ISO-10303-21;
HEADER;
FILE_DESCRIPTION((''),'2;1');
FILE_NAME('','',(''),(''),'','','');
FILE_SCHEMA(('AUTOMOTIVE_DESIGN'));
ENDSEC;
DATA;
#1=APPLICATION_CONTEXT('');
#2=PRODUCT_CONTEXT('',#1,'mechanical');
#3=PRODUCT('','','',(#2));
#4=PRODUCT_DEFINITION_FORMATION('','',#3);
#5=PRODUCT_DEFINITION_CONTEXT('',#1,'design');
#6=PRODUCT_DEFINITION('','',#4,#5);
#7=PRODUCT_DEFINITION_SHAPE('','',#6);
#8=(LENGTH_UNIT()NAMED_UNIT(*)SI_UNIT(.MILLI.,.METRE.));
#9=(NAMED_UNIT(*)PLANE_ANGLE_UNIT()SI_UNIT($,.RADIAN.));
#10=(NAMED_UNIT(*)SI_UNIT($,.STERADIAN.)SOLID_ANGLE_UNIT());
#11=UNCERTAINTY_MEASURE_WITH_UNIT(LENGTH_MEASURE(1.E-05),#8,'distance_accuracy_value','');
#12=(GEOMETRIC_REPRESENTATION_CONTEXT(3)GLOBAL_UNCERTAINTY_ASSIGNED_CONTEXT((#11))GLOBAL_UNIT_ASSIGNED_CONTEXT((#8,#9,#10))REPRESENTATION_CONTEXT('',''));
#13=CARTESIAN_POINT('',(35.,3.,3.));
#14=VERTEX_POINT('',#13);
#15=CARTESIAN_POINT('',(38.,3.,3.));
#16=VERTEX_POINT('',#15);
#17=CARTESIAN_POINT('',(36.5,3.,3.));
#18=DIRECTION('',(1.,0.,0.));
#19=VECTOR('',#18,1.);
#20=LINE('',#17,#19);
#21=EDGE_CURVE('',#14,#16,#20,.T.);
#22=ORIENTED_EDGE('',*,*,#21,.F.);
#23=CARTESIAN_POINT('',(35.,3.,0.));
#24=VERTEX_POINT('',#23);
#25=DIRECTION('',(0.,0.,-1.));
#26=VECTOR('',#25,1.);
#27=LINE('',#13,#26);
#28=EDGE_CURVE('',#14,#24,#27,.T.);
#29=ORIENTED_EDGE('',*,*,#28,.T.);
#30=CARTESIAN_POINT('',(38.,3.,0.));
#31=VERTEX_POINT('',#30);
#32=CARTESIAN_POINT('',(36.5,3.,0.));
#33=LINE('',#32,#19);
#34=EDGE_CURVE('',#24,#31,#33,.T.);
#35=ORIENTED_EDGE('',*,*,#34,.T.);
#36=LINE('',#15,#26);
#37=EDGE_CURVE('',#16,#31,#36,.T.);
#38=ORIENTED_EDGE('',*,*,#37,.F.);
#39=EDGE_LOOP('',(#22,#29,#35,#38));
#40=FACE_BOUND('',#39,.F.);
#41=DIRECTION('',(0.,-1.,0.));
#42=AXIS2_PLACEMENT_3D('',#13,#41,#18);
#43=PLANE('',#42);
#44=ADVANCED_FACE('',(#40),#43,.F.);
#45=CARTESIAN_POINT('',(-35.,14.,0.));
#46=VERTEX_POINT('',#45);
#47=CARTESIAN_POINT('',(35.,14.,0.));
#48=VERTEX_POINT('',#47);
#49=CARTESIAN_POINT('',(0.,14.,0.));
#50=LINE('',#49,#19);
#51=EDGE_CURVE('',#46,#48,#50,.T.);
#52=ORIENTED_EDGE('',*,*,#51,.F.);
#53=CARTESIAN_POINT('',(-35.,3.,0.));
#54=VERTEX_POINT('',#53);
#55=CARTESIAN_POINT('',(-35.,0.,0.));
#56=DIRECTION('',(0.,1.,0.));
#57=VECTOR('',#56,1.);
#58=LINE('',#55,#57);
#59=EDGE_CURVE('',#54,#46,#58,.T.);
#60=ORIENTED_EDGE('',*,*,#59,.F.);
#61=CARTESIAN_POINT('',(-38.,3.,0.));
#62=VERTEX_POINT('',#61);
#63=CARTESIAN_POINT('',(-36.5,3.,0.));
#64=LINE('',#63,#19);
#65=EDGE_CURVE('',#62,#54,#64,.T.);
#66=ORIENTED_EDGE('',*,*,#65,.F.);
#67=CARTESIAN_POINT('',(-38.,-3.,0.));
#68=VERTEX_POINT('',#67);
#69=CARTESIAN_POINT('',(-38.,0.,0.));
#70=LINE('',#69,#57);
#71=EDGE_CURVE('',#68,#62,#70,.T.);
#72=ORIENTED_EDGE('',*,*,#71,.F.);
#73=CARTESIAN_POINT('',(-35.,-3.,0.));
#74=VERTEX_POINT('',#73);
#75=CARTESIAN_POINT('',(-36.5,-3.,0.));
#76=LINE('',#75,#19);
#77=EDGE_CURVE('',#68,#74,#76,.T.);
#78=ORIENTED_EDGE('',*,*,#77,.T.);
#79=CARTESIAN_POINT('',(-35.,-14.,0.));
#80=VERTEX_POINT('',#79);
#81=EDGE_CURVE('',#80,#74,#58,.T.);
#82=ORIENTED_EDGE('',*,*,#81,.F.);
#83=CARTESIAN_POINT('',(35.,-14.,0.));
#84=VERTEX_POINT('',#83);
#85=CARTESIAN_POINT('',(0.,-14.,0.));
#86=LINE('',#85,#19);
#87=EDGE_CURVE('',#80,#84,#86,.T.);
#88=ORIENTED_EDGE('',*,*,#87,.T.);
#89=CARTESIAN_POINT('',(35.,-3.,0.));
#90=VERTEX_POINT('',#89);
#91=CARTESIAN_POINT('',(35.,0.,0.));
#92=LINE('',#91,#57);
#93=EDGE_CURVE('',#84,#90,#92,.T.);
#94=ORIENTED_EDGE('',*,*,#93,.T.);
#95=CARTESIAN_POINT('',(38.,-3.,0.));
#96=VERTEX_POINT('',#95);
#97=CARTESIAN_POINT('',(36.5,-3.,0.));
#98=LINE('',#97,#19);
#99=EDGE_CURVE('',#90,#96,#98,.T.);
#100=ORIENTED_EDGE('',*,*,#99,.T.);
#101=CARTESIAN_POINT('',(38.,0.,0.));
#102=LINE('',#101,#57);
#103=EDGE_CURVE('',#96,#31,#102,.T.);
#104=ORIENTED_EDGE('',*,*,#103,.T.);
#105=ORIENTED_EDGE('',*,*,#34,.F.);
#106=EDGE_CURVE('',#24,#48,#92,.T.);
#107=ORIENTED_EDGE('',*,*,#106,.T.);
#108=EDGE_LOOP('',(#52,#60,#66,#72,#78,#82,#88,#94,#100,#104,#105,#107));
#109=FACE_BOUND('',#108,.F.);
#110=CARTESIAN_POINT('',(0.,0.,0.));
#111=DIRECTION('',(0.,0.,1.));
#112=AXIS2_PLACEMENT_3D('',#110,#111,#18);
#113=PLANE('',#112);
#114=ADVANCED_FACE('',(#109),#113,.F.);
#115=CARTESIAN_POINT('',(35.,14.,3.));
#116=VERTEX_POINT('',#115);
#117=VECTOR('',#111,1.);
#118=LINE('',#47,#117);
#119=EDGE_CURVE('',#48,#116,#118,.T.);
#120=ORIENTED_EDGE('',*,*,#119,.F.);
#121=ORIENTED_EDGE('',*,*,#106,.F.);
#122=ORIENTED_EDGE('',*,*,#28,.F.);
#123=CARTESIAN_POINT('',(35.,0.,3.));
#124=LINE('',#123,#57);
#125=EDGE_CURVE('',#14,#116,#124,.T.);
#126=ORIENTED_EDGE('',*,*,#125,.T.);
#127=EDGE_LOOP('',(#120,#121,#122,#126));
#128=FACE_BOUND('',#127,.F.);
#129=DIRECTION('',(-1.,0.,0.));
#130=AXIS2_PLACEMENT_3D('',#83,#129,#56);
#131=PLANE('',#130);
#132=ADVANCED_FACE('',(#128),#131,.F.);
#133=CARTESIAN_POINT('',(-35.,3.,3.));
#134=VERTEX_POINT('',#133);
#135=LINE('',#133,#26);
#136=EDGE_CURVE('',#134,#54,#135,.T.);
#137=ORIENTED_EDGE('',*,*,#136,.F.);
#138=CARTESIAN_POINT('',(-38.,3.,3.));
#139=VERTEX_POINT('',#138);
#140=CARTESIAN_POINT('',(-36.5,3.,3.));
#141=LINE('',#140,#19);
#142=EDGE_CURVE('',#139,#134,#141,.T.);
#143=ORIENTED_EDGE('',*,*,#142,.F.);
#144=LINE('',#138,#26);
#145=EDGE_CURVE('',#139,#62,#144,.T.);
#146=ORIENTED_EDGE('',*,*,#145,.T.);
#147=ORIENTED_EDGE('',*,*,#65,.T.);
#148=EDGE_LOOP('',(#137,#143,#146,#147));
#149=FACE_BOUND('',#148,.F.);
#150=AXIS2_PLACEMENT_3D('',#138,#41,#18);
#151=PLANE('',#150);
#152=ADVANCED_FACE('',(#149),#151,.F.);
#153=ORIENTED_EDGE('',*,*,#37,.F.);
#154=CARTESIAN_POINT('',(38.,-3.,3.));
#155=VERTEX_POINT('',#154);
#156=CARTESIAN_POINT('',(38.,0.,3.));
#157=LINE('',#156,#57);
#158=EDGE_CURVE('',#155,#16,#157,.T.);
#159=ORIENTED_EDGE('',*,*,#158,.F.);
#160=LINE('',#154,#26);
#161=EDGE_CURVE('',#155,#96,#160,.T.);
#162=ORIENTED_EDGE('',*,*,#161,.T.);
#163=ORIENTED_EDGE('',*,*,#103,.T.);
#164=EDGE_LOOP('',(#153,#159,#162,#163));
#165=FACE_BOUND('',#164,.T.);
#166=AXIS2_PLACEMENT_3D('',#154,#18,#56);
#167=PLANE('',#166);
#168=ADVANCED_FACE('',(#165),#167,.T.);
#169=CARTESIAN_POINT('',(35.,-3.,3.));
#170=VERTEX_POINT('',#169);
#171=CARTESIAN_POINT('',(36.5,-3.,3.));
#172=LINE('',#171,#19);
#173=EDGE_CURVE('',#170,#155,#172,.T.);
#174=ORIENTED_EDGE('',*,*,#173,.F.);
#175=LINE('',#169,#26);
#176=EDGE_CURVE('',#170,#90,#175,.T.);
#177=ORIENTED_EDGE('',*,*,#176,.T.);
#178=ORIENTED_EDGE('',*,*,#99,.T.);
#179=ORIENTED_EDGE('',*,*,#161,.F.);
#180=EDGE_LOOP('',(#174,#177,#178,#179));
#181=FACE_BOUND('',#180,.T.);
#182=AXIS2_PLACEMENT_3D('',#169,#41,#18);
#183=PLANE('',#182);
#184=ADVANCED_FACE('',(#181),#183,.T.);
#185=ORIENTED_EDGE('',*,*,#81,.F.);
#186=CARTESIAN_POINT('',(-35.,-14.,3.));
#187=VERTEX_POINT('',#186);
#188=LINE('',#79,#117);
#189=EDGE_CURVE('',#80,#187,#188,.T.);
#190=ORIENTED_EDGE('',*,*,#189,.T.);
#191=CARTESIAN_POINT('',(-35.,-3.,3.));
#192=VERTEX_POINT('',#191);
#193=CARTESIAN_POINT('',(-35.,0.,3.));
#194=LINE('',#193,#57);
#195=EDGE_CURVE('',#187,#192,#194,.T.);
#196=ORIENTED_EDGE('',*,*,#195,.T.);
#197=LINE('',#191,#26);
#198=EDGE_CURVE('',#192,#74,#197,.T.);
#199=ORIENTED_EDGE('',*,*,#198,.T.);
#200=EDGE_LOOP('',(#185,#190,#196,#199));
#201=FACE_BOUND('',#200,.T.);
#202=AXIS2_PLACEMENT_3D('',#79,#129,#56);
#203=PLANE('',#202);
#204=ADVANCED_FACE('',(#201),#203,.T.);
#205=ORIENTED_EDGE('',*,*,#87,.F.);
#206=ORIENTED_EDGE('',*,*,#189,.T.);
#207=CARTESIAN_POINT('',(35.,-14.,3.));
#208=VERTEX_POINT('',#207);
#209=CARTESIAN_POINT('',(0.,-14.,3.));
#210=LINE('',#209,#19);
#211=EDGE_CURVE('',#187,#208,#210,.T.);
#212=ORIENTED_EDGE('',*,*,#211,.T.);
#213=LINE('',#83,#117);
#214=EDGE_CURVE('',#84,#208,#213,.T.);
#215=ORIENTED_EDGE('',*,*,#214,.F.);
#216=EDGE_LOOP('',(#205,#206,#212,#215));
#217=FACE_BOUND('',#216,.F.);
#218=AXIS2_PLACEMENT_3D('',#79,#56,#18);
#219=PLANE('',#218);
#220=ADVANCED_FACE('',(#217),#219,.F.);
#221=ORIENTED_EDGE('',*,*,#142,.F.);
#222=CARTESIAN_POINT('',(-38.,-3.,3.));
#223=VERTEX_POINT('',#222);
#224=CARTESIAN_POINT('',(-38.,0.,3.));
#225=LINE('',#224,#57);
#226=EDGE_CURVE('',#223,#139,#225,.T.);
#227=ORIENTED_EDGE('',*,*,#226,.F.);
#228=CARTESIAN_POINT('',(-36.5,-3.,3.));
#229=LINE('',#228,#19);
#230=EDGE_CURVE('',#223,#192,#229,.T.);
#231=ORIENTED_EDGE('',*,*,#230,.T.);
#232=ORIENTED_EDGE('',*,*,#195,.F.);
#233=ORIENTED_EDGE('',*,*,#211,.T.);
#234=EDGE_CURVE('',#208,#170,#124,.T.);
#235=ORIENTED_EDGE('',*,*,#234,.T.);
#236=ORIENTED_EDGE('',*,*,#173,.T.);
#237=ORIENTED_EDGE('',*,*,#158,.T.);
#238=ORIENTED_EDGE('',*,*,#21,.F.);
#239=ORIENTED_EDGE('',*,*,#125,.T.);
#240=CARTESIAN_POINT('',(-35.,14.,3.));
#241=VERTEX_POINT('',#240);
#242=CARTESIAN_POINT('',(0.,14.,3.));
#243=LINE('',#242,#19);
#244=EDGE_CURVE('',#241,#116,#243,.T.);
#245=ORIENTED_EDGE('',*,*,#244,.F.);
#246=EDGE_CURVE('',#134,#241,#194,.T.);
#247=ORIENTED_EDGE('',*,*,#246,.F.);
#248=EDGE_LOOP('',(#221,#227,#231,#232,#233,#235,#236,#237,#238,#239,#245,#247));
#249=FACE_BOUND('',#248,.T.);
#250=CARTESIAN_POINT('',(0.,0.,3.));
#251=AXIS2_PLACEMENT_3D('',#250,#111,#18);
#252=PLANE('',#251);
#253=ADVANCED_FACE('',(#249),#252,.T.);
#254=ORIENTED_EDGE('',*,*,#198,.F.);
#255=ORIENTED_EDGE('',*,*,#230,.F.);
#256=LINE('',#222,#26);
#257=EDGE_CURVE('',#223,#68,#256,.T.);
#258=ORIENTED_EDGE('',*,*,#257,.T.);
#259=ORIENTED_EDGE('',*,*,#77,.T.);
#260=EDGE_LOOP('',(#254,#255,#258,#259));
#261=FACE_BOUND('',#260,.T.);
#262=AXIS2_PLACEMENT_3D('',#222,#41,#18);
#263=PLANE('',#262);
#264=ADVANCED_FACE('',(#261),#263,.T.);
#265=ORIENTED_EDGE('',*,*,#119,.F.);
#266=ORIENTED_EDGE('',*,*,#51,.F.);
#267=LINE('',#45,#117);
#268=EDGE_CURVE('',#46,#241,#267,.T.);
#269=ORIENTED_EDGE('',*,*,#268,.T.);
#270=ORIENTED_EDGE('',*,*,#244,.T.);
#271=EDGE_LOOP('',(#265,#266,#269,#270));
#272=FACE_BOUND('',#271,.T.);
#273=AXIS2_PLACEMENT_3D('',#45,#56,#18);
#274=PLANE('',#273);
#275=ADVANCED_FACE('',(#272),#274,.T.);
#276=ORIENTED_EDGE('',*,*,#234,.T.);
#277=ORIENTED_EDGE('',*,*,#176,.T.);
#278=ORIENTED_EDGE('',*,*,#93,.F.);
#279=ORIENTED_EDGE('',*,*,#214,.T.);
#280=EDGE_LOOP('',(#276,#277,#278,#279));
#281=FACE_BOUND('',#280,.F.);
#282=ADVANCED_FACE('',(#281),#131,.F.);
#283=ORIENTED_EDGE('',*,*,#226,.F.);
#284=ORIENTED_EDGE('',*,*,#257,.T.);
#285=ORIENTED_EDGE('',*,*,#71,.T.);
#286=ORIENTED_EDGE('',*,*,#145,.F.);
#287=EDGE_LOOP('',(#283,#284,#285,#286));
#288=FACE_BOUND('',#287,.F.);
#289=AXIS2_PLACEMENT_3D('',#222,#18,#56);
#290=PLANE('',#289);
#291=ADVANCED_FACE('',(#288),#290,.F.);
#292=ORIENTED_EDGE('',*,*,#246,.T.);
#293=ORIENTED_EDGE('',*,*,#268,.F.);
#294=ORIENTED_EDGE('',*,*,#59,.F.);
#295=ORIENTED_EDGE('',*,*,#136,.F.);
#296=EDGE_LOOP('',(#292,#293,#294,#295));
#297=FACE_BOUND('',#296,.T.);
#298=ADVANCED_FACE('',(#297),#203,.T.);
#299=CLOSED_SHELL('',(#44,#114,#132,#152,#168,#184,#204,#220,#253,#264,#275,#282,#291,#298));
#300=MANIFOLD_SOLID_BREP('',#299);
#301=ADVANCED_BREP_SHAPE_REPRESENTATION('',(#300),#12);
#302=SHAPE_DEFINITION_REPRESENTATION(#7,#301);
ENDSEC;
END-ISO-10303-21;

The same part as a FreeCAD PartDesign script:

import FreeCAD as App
import Part
import Sketcher


def add_polygon(sketch, points):
    """Adds a closed chain of lines whose ends are joined by coincident constraints."""
    first, n = sketch.GeometryCount, len(points)
    for a, b in zip(points, points[1:] + points[:1]):
        sketch.addGeometry(Part.LineSegment(App.Vector(*a, 0), App.Vector(*b, 0)), False)
    for i in range(n):
        sketch.addConstraint(Sketcher.Constraint("Coincident", first + i, 2, first + (i + 1) % n, 1))

doc = App.newDocument("Part")
body = doc.addObject("PartDesign::Body", "Body")

sketch1 = doc.addObject("Sketcher::SketchObject", "Sketch")
body.addObject(sketch1)
sketch1.AttachmentSupport = (doc.XY_Plane, [""])
sketch1.MapMode = "FlatFace"
add_polygon(sketch1, [(-35, 14), (-35, -14), (35, -14), (35, 14)])
sketch1.addConstraint(Sketcher.Constraint("Vertical", 0))
sketch1.addConstraint(Sketcher.Constraint("Horizontal", 1))
sketch1.addConstraint(Sketcher.Constraint("Vertical", 2))
sketch1.addConstraint(Sketcher.Constraint("Horizontal", 3))
sketch1.addConstraint(Sketcher.Constraint("Symmetric", 0, 2, 2, 2, -1, 1))
sketch1.addConstraint(Sketcher.Constraint("DistanceX", 1, 1, 1, 2, 70.0))
sketch1.addConstraint(Sketcher.Constraint("DistanceY", 0, 2, 0, 1, 28.0))
pad1 = doc.addObject("PartDesign::Pad", "Pad")
body.addObject(pad1)
pad1.Profile = sketch1
pad1.Length = 3

sketch2 = doc.addObject("Sketcher::SketchObject", "Sketch001")
body.addObject(sketch2)
sketch2.AttachmentSupport = (doc.XY_Plane, [""])
sketch2.MapMode = "FlatFace"
sketch2.AttachmentOffset = App.Placement(App.Vector(0, 0, 3), App.Rotation())
add_polygon(sketch2, [(-38, 3), (-38, -3), (-35, -3), (-35, 3)])
add_polygon(sketch2, [(35, 3), (35, -3), (38, -3), (38, 3)])
sketch2.addConstraint(Sketcher.Constraint("Vertical", 0))
sketch2.addConstraint(Sketcher.Constraint("Horizontal", 1))
sketch2.addConstraint(Sketcher.Constraint("Vertical", 2))
sketch2.addConstraint(Sketcher.Constraint("Horizontal", 3))
sketch2.addConstraint(Sketcher.Constraint("Vertical", 4))
sketch2.addConstraint(Sketcher.Constraint("Horizontal", 5))
sketch2.addConstraint(Sketcher.Constraint("Vertical", 6))
sketch2.addConstraint(Sketcher.Constraint("Horizontal", 7))
sketch2.addConstraint(Sketcher.Constraint("Symmetric", 2, 2, 4, 2, -1, 1))
sketch2.addConstraint(Sketcher.Constraint("Symmetric", 0, 2, 6, 2, -1, 1))
sketch2.addConstraint(Sketcher.Constraint("Horizontal", 1, 2, 4, 2))
sketch2.addConstraint(Sketcher.Constraint("DistanceX", 1, 1, 1, 2, 3.0))
sketch2.addConstraint(Sketcher.Constraint("DistanceY", 0, 2, 0, 1, 6.0))
sketch2.addConstraint(Sketcher.Constraint("DistanceX", 0, 2, -1, 1, 38.0))
pad2 = doc.addObject("PartDesign::Pad", "Pad001")
body.addObject(pad2)
pad2.Profile = sketch2
pad2.Length = 3
pad2.Reversed = True

doc.recompute()
